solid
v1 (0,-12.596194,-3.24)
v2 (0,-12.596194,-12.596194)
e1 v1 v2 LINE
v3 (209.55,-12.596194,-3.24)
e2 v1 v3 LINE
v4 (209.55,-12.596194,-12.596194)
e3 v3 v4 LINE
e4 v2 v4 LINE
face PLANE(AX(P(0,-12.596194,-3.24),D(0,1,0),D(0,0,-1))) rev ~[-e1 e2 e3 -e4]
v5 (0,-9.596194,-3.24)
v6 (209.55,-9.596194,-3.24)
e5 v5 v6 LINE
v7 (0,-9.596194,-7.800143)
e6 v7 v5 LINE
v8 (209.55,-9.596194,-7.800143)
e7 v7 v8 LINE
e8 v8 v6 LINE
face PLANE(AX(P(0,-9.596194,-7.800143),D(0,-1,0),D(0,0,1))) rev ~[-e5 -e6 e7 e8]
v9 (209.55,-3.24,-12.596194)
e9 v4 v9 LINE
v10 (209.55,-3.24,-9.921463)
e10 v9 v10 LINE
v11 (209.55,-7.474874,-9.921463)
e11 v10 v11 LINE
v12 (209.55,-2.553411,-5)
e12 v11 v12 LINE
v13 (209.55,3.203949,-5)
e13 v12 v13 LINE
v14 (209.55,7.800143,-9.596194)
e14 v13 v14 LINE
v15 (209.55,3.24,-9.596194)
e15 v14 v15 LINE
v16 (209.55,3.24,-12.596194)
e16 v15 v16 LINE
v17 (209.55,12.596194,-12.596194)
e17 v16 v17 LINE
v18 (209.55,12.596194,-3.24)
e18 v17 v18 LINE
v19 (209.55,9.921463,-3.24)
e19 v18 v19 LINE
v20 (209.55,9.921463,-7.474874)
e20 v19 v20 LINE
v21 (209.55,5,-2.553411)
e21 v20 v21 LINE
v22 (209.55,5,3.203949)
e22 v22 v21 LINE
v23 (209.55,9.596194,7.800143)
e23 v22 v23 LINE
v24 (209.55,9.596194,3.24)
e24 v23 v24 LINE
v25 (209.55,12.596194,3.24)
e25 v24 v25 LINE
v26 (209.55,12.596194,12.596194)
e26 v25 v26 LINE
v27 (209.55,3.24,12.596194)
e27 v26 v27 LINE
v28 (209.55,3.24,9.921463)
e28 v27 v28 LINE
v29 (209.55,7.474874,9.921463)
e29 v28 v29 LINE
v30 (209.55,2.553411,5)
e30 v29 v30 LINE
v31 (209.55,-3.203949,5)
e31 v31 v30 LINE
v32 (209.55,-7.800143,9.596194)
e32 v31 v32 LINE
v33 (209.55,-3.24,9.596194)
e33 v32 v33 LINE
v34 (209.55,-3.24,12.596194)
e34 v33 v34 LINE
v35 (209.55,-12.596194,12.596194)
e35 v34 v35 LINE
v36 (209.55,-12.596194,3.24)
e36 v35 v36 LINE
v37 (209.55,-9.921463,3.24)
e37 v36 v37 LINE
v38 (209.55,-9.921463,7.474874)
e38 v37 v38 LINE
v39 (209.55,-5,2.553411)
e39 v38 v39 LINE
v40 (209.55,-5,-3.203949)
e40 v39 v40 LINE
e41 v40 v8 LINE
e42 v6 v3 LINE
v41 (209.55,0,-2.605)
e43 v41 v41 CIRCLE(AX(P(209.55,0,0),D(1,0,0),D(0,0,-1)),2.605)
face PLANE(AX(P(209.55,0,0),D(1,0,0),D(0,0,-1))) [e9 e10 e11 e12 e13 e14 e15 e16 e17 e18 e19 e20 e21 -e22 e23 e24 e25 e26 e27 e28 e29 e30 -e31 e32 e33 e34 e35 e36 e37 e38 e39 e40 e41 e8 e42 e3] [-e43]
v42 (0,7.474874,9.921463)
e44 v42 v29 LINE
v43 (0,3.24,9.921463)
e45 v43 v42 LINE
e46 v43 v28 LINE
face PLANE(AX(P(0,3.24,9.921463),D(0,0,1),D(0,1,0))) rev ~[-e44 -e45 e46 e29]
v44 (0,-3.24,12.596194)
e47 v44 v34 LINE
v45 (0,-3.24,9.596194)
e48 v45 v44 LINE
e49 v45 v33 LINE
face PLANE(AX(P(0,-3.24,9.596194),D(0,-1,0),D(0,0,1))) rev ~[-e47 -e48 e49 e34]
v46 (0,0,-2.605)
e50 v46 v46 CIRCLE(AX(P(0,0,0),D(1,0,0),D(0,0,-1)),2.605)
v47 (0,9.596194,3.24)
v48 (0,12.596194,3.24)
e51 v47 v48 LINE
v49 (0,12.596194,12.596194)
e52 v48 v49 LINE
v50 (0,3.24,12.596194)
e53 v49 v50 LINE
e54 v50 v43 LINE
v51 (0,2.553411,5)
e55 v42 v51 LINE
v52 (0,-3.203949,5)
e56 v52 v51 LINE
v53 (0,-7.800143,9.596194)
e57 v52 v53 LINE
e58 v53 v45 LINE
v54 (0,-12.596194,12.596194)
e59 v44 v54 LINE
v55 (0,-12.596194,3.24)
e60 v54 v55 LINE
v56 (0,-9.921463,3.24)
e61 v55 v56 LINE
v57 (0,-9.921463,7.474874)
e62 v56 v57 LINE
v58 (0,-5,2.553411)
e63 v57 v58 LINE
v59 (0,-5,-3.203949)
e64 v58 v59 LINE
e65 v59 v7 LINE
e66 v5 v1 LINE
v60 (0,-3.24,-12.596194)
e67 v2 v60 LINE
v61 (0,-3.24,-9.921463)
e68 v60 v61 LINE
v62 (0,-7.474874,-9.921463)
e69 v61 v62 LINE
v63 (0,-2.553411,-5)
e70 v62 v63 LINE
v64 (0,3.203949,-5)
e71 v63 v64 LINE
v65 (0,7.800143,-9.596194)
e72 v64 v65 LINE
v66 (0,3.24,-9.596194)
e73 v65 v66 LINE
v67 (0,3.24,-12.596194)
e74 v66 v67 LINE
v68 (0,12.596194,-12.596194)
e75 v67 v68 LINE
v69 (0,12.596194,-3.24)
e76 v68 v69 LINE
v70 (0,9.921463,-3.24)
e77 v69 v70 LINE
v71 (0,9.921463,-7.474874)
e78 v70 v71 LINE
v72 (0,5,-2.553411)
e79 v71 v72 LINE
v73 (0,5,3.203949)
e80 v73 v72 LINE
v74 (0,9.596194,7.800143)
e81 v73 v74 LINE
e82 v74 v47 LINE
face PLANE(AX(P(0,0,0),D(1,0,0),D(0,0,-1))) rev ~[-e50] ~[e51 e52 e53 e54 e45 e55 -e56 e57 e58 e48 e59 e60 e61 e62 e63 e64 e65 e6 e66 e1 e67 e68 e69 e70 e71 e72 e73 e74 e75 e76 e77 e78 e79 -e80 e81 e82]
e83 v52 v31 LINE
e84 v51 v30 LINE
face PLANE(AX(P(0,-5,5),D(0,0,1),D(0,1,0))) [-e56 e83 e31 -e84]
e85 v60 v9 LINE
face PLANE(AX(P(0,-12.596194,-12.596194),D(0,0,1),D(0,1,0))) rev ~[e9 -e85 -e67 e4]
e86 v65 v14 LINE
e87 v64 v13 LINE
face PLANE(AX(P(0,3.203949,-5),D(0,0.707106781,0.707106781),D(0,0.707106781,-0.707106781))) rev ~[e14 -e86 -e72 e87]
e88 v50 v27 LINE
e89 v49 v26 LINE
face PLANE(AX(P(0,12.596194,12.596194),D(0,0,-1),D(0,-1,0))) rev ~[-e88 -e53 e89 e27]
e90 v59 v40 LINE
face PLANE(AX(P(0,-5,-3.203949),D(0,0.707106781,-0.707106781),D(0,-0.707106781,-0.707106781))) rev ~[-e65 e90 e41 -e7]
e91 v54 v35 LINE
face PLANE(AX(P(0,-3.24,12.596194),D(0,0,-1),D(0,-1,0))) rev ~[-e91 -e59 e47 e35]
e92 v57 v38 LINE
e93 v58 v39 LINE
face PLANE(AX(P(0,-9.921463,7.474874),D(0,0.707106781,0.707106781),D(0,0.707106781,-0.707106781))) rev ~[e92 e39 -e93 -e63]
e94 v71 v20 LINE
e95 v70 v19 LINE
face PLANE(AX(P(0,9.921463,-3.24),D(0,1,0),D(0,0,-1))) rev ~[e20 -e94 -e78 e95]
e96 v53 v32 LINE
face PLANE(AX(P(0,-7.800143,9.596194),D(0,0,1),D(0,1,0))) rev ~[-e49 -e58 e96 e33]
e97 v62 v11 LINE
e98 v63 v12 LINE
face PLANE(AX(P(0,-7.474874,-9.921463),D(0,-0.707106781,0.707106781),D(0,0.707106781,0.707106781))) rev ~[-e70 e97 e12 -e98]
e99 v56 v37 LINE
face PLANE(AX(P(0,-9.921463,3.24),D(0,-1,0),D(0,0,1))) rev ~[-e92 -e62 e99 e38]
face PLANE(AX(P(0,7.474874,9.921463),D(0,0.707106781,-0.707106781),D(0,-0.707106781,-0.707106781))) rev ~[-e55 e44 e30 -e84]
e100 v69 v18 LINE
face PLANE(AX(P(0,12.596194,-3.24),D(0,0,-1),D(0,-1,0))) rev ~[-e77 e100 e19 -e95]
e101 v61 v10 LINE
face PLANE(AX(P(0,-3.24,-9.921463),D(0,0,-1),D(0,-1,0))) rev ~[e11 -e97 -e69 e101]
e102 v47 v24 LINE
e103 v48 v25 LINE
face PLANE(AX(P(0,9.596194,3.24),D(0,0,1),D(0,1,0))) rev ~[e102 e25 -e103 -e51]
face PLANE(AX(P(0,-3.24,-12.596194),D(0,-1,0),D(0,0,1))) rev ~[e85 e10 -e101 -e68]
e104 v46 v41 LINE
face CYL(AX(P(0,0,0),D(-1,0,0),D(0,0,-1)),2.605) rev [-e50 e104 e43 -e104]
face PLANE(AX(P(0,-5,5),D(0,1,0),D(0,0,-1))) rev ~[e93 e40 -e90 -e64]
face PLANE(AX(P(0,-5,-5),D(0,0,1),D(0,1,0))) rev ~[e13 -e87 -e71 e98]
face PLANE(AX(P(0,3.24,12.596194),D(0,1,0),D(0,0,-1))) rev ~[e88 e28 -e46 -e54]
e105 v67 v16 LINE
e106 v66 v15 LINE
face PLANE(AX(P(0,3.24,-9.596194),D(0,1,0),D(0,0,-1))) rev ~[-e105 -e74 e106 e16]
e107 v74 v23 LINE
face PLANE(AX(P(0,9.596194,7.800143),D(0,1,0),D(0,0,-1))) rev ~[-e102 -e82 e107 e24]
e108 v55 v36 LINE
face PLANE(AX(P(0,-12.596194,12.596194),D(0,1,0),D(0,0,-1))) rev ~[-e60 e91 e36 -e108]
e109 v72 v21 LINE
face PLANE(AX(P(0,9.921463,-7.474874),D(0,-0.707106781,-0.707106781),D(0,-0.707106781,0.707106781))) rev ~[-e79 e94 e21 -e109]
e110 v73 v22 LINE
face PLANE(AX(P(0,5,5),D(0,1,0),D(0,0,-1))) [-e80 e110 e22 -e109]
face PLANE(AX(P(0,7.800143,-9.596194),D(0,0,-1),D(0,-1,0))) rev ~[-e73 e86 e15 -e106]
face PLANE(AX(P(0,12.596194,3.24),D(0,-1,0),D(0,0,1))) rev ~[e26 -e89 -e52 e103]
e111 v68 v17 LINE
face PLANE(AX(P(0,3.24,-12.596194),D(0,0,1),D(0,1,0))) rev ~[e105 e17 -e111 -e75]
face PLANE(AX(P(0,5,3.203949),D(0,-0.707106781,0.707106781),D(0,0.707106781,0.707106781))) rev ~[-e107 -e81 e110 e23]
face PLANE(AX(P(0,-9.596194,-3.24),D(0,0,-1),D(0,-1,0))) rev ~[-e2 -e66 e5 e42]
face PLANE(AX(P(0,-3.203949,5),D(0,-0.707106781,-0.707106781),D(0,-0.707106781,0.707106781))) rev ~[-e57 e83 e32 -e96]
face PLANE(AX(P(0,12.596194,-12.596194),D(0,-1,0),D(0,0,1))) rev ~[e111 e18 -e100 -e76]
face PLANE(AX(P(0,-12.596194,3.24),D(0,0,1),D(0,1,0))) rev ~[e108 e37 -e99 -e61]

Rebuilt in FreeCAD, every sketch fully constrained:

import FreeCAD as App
import Part
import Sketcher
Q = App.Units.Quantity

doc = App.newDocument("Part")
params = doc.addObject("Spreadsheet::Sheet", "Params")
for row, (alias, value) in enumerate([
    ("sketch1_diameter", "5.21 mm"),
    ("sketch1_width", "10 mm"),
    ("sketch1_height", "3 mm"),
    ("sketch1_length", "6.5 mm"),
    ("sketch1_length2", "6.96 mm"),
    ("pad1_length", "209.55 mm"),
], start=1):
    params.set(f"A{row}", alias)
    params.set(f"B{row}", "=" + value)
    params.setAlias(f"B{row}", alias)

body = doc.addObject("PartDesign::Body", "Body")

sketch1 = body.newObject("Sketcher::SketchObject", "Sketch")
sketch1.AttachmentSupport = (doc.getObject("YZ_Plane"), [""])
sketch1.MapMode = "FlatFace"
sketch1.addGeometry(Part.LineSegment(App.Vector(5, 5, 0), App.Vector(-5, 5, 0)), False)
sketch1.addGeometry(Part.LineSegment(App.Vector(-5, 5, 0), App.Vector(-5, -5, 0)), False)
sketch1.addGeometry(Part.LineSegment(App.Vector(-5, -5, 0), App.Vector(3.203949, -5, 0)), False)
sketch1.addGeometry(Part.LineSegment(App.Vector(3.203949, -5, 0), App.Vector(7.800143, -9.596194, 0)), False)
sketch1.addGeometry(Part.LineSegment(App.Vector(7.800143, -9.596194, 0), App.Vector(3.24, -9.596194, 0)), False)
sketch1.addGeometry(Part.LineSegment(App.Vector(3.24, -9.596194, 0), App.Vector(3.24, -12.596194, 0)), False)
sketch1.addGeometry(Part.LineSegment(App.Vector(3.24, -12.596194, 0), App.Vector(12.596194, -12.596194, 0)), False)
sketch1.addGeometry(Part.LineSegment(App.Vector(12.596194, -12.596194, 0), App.Vector(12.596194, -3.24, 0)), False)
sketch1.addGeometry(Part.LineSegment(App.Vector(12.596194, -3.24, 0), App.Vector(9.921463, -3.24, 0)), False)
sketch1.addGeometry(Part.LineSegment(App.Vector(9.921463, -3.24, 0), App.Vector(9.921463, -7.474874, 0)), False)
sketch1.addGeometry(Part.LineSegment(App.Vector(9.921463, -7.474874, 0), App.Vector(5, -2.553411, 0)), False)
sketch1.addGeometry(Part.LineSegment(App.Vector(5, -2.553411, 0), App.Vector(5, 5, 0)), False)
sketch1.addGeometry(Part.Circle(App.Vector(0, 0, 0), App.Vector(0, 0, 1), 2.605), False)
sketch1.addConstraint(Sketcher.Constraint("Coincident", 0, 2, 1, 1))
sketch1.addConstraint(Sketcher.Constraint("Coincident", 1, 2, 2, 1))
sketch1.addConstraint(Sketcher.Constraint("Coincident", 2, 2, 3, 1))
sketch1.addConstraint(Sketcher.Constraint("Coincident", 3, 2, 4, 1))
sketch1.addConstraint(Sketcher.Constraint("Coincident", 4, 2, 5, 1))
sketch1.addConstraint(Sketcher.Constraint("Coincident", 5, 2, 6, 1))
sketch1.addConstraint(Sketcher.Constraint("Coincident", 6, 2, 7, 1))
sketch1.addConstraint(Sketcher.Constraint("Coincident", 7, 2, 8, 1))
sketch1.addConstraint(Sketcher.Constraint("Coincident", 8, 2, 9, 1))
sketch1.addConstraint(Sketcher.Constraint("Coincident", 9, 2, 10, 1))
sketch1.addConstraint(Sketcher.Constraint("Coincident", 10, 2, 11, 1))
sketch1.addConstraint(Sketcher.Constraint("Coincident", 11, 2, 0, 1))
sketch1.addConstraint(Sketcher.Constraint("Horizontal", 0))
sketch1.addConstraint(Sketcher.Constraint("Vertical", 1))
sketch1.addConstraint(Sketcher.Constraint("Horizontal", 2))
sketch1.addConstraint(Sketcher.Constraint("Horizontal", 4))
sketch1.addConstraint(Sketcher.Constraint("Vertical", 5))
sketch1.addConstraint(Sketcher.Constraint("Horizontal", 6))
sketch1.addConstraint(Sketcher.Constraint("Vertical", 7))
sketch1.addConstraint(Sketcher.Constraint("Horizontal", 8))
sketch1.addConstraint(Sketcher.Constraint("Vertical", 9))
sketch1.addConstraint(Sketcher.Constraint("Vertical", 11))
sketch1.addConstraint(Sketcher.Constraint("Coincident", 12, 3, -1, 1))
sketch1.addConstraint(Sketcher.Constraint("Symmetric", 1, 2, 11, 2, -1, 1))
sketch1.addConstraint(Sketcher.Constraint("Parallel", 3, 10))
sketch1.addConstraint(Sketcher.Constraint("Equal", 0, 1))
sketch1.addConstraint(Sketcher.Constraint("Equal", 6, 7))
sketch1.addConstraint(Sketcher.Constraint("Diameter", 12, Q("5.21 mm")))
sketch1.addConstraint(Sketcher.Constraint("DistanceX", 0, 2, 0, 1, Q("10 mm")))
sketch1.addConstraint(Sketcher.Constraint("DistanceY", 5, 2, 5, 1, Q("3 mm")))
sketch1.addConstraint(Sketcher.Constraint("Angle", 3, Q("-45 deg")))
sketch1.addConstraint(Sketcher.Constraint("Distance", 3, Q("6.5 mm")))
sketch1.addConstraint(Sketcher.Constraint("Distance", 10, Q("6.96 mm")))
sketch1.addConstraint(Sketcher.Constraint("DistanceX", -1, 1, 4, 2, Q("3.24 mm")))
sketch1.addConstraint(Sketcher.Constraint("DistanceY", 7, 2, -1, 1, Q("3.24 mm")))
sketch1.addConstraint(Sketcher.Constraint("DistanceX", 2, 1, 2, 2, Q("8.203949 mm")))
sketch1.addConstraint(Sketcher.Constraint("DistanceY", 11, 1, 11, 2, Q("7.553411 mm")))
sketch1.setExpression("Constraints[27]", "Params.sketch1_diameter")
sketch1.setExpression("Constraints[28]", "Params.sketch1_width")
sketch1.setExpression("Constraints[29]", "Params.sketch1_height")
sketch1.setExpression("Constraints[31]", "Params.sketch1_length")
sketch1.setExpression("Constraints[32]", "Params.sketch1_length2")
pad1 = body.newObject("PartDesign::Pad", "Pad")
pad1.Profile = sketch1
pad1.setExpression("Length", "Params.pad1_length")
doc.recompute()

polarpattern = body.newObject("PartDesign::PolarPattern", "PolarPattern")
polarpattern.Originals = [pad1]
polarpattern.Axis = (doc.getObject("X_Axis"), [""])
polarpattern.Angle = 360
polarpattern.Occurrences = 4
body.Tip = polarpattern

doc.recompute()
